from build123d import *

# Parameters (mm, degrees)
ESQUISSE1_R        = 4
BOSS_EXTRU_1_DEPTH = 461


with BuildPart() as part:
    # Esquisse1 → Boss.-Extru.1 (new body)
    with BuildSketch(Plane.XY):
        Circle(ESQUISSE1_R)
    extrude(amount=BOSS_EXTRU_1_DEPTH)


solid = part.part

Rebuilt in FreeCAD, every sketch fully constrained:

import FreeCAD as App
import Part
import Sketcher

doc = App.newDocument("Part")
params = doc.addObject("Spreadsheet::Sheet", "Params")
for row, (alias, value) in enumerate([
    ("sketch1_diameter", "8 mm"),
    ("pad1_length", "461 mm"),
], start=1):
    params.set(f"A{row}", alias)
    params.set(f"B{row}", "=" + value)
    params.setAlias(f"B{row}", alias)

body = doc.addObject("PartDesign::Body", "Body")

# Sketch on XY plane
sketch1 = body.newObject("Sketcher::SketchObject", "Sketch")
sketch1.AttachmentSupport = (doc.getObject("XY_Plane"), [""])
sketch1.MapMode = "FlatFace"
sketch1.addGeometry(Part.Circle(App.Vector(0, 0, 0), App.Vector(0, 0, 1), 4), False)
sketch1.addConstraint(Sketcher.Constraint("Coincident", 0, 3, -1, 1))
sketch1.addConstraint(Sketcher.Constraint("Diameter", 0, 8.0))
sketch1.setExpression("Constraints[1]", "Params.sketch1_diameter")
pad1 = body.newObject("PartDesign::Pad", "Pad")
pad1.Profile = sketch1
pad1.setExpression("Length", "Params.pad1_length")

doc.recompute()
